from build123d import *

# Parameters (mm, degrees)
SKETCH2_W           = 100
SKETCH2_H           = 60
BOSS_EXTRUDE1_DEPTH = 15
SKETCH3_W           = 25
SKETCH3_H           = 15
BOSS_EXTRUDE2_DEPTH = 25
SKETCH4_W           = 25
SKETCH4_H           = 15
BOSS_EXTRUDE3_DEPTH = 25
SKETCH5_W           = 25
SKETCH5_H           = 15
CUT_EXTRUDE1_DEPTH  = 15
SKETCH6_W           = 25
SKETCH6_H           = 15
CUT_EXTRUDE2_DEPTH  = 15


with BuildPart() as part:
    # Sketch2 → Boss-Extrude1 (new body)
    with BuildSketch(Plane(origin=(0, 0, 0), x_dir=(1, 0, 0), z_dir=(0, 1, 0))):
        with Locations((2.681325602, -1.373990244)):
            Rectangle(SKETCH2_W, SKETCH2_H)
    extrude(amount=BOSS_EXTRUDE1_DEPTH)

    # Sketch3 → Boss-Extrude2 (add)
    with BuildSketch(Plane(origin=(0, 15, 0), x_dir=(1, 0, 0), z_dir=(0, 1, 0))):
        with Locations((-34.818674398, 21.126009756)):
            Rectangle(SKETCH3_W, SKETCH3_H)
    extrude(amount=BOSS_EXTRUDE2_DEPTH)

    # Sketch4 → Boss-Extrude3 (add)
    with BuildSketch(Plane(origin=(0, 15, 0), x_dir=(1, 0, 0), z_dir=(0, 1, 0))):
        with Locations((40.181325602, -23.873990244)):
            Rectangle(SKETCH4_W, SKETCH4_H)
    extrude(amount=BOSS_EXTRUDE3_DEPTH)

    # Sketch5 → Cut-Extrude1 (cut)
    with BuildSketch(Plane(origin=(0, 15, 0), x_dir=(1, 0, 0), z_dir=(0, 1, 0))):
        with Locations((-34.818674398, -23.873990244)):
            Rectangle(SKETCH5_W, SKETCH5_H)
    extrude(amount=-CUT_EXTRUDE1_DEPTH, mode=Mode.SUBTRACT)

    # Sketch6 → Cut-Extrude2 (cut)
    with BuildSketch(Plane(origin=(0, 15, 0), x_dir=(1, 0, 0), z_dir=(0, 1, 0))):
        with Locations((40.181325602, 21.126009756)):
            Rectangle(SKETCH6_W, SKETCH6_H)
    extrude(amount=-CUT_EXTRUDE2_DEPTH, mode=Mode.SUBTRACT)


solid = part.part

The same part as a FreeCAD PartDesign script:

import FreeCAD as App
import Part
import Sketcher

V = App.Vector

doc = App.newDocument("Part")
body = doc.addObject("PartDesign::Body", "Body")

# Sketch on XZ plane
sketch1 = doc.addObject("Sketcher::SketchObject", "Sketch")
body.addObject(sketch1)
sketch1.AttachmentSupport = (doc.XZ_Plane, [""])
sketch1.MapMode = "FlatFace"
sketch1.addGeometry(Part.LineSegment(V(-47, -29, 0), V(-47, 31, 0)), False)
sketch1.addGeometry(Part.LineSegment(V(-47, 31, 0), V(53, 31, 0)), False)
sketch1.addGeometry(Part.LineSegment(V(53, 31, 0), V(53, -29, 0)), False)
sketch1.addGeometry(Part.LineSegment(V(53, -29, 0), V(-47, -29, 0)), False)
sketch1.addConstraint(Sketcher.Constraint("Coincident", 0, 2, 1, 1))
sketch1.addConstraint(Sketcher.Constraint("Coincident", 1, 2, 2, 1))
sketch1.addConstraint(Sketcher.Constraint("Coincident", 2, 2, 3, 1))
sketch1.addConstraint(Sketcher.Constraint("Coincident", 3, 2, 0, 1))
sketch1.addConstraint(Sketcher.Constraint("Vertical", 0))
sketch1.addConstraint(Sketcher.Constraint("Horizontal", 1))
sketch1.addConstraint(Sketcher.Constraint("Vertical", 2))
sketch1.addConstraint(Sketcher.Constraint("Horizontal", 3))
sketch1.addConstraint(Sketcher.Constraint("DistanceX", 1, 1, 1, 2, 100.0))
sketch1.addConstraint(Sketcher.Constraint("DistanceY", 0, 1, 0, 2, 60.0))
sketch1.addConstraint(Sketcher.Constraint("DistanceY", -1, 1, 0, 2, 31.37399))
sketch1.addConstraint(Sketcher.Constraint("DistanceX", 0, 2, -1, 1, 47.318674))
pad1 = doc.addObject("PartDesign::Pad", "Pad")
body.addObject(pad1)
pad1.Profile = sketch1
pad1.Length = 15
pad1.Reversed = True

# Sketch on XZ plane
sketch2 = doc.addObject("Sketcher::SketchObject", "Sketch001")
body.addObject(sketch2)
sketch2.AttachmentSupport = (doc.XZ_Plane, [""])
sketch2.MapMode = "FlatFace"
sketch2.AttachmentOffset = App.Placement(V(0, 0, -15), App.Rotation())
sketch2.addGeometry(Part.LineSegment(V(-47, -29, 0), V(-47, -14, 0)), False)
sketch2.addGeometry(Part.LineSegment(V(-47, -14, 0), V(-22, -14, 0)), False)
sketch2.addGeometry(Part.LineSegment(V(-22, -14, 0), V(-22, -29, 0)), False)
sketch2.addGeometry(Part.LineSegment(V(-22, -29, 0), V(-47, -29, 0)), False)
sketch2.addConstraint(Sketcher.Constraint("Coincident", 0, 2, 1, 1))
sketch2.addConstraint(Sketcher.Constraint("Coincident", 1, 2, 2, 1))
sketch2.addConstraint(Sketcher.Constraint("Coincident", 2, 2, 3, 1))
sketch2.addConstraint(Sketcher.Constraint("Coincident", 3, 2, 0, 1))
sketch2.addConstraint(Sketcher.Constraint("Vertical", 0))
sketch2.addConstraint(Sketcher.Constraint("Horizontal", 1))
sketch2.addConstraint(Sketcher.Constraint("Vertical", 2))
sketch2.addConstraint(Sketcher.Constraint("Horizontal", 3))
sketch2.addConstraint(Sketcher.Constraint("DistanceX", 1, 1, 1, 2, 25.0))
sketch2.addConstraint(Sketcher.Constraint("DistanceY", 0, 1, 0, 2, 15.0))
sketch2.addConstraint(Sketcher.Constraint("DistanceY", 0, 2, -1, 1, 13.62601))
sketch2.addConstraint(Sketcher.Constraint("DistanceX", 0, 2, -1, 1, 47.318674))
pad2 = doc.addObject("PartDesign::Pad", "Pad001")
body.addObject(pad2)
pad2.Profile = sketch2
pad2.Length = 25
pad2.Reversed = True

# Sketch on XZ plane
sketch3 = doc.addObject("Sketcher::SketchObject", "Sketch002")
body.addObject(sketch3)
sketch3.AttachmentSupport = (doc.XZ_Plane, [""])
sketch3.MapMode = "FlatFace"
sketch3.AttachmentOffset = App.Placement(V(0, 0, -15), App.Rotation())
sketch3.addGeometry(Part.LineSegment(V(28, 16, 0), V(28, 31, 0)), False)
sketch3.addGeometry(Part.LineSegment(V(28, 31, 0), V(53, 31, 0)), False)
sketch3.addGeometry(Part.LineSegment(V(53, 31, 0), V(53, 16, 0)), False)
sketch3.addGeometry(Part.LineSegment(V(53, 16, 0), V(28, 16, 0)), False)
sketch3.addConstraint(Sketcher.Constraint("Coincident", 0, 2, 1, 1))
sketch3.addConstraint(Sketcher.Constraint("Coincident", 1, 2, 2, 1))
sketch3.addConstraint(Sketcher.Constraint("Coincident", 2, 2, 3, 1))
sketch3.addConstraint(Sketcher.Constraint("Coincident", 3, 2, 0, 1))
sketch3.addConstraint(Sketcher.Constraint("Vertical", 0))
sketch3.addConstraint(Sketcher.Constraint("Horizontal", 1))
sketch3.addConstraint(Sketcher.Constraint("Vertical", 2))
sketch3.addConstraint(Sketcher.Constraint("Horizontal", 3))
sketch3.addConstraint(Sketcher.Constraint("DistanceX", 1, 1, 1, 2, 25.0))
sketch3.addConstraint(Sketcher.Constraint("DistanceY", 0, 1, 0, 2, 15.0))
sketch3.addConstraint(Sketcher.Constraint("DistanceY", -1, 1, 0, 2, 31.37399))
sketch3.addConstraint(Sketcher.Constraint("DistanceX", -1, 1, 0, 2, 27.681326))
pad3 = doc.addObject("PartDesign::Pad", "Pad002")
body.addObject(pad3)
pad3.Profile = sketch3
pad3.Length = 25
pad3.Reversed = True

# Sketch on XZ plane
sketch4 = doc.addObject("Sketcher::SketchObject", "Sketch003")
body.addObject(sketch4)
sketch4.AttachmentSupport = (doc.XZ_Plane, [""])
sketch4.MapMode = "FlatFace"
sketch4.AttachmentOffset = App.Placement(V(0, 0, -15), App.Rotation())
sketch4.addGeometry(Part.LineSegment(V(-47, 16, 0), V(-47, 31, 0)), False)
sketch4.addGeometry(Part.LineSegment(V(-47, 31, 0), V(-22, 31, 0)), False)
sketch4.addGeometry(Part.LineSegment(V(-22, 31, 0), V(-22, 16, 0)), False)
sketch4.addGeometry(Part.LineSegment(V(-22, 16, 0), V(-47, 16, 0)), False)
sketch4.addConstraint(Sketcher.Constraint("Coincident", 0, 2, 1, 1))
sketch4.addConstraint(Sketcher.Constraint("Coincident", 1, 2, 2, 1))
sketch4.addConstraint(Sketcher.Constraint("Coincident", 2, 2, 3, 1))
sketch4.addConstraint(Sketcher.Constraint("Coincident", 3, 2, 0, 1))
sketch4.addConstraint(Sketcher.Constraint("Vertical", 0))
sketch4.addConstraint(Sketcher.Constraint("Horizontal", 1))
sketch4.addConstraint(Sketcher.Constraint("Vertical", 2))
sketch4.addConstraint(Sketcher.Constraint("Horizontal", 3))
sketch4.addConstraint(Sketcher.Constraint("DistanceX", 1, 1, 1, 2, 25.0))
sketch4.addConstraint(Sketcher.Constraint("DistanceY", 0, 1, 0, 2, 15.0))
sketch4.addConstraint(Sketcher.Constraint("DistanceY", -1, 1, 0, 2, 31.37399))
sketch4.addConstraint(Sketcher.Constraint("DistanceX", 0, 2, -1, 1, 47.318674))
pocket1 = doc.addObject("PartDesign::Pocket", "Pocket")
body.addObject(pocket1)
pocket1.Profile = sketch4
pocket1.Length = 15
pocket1.Reversed = True

# Sketch on XZ plane
sketch5 = doc.addObject("Sketcher::SketchObject", "Sketch004")
body.addObject(sketch5)
sketch5.AttachmentSupport = (doc.XZ_Plane, [""])
sketch5.MapMode = "FlatFace"
sketch5.AttachmentOffset = App.Placement(V(0, 0, -15), App.Rotation())
sketch5.addGeometry(Part.LineSegment(V(28, -29, 0), V(28, -14, 0)), False)
sketch5.addGeometry(Part.LineSegment(V(28, -14, 0), V(53, -14, 0)), False)
sketch5.addGeometry(Part.LineSegment(V(53, -14, 0), V(53, -29, 0)), False)
sketch5.addGeometry(Part.LineSegment(V(53, -29, 0), V(28, -29, 0)), False)
sketch5.addConstraint(Sketcher.Constraint("Coincident", 0, 2, 1, 1))
sketch5.addConstraint(Sketcher.Constraint("Coincident", 1, 2, 2, 1))
sketch5.addConstraint(Sketcher.Constraint("Coincident", 2, 2, 3, 1))
sketch5.addConstraint(Sketcher.Constraint("Coincident", 3, 2, 0, 1))
sketch5.addConstraint(Sketcher.Constraint("Vertical", 0))
sketch5.addConstraint(Sketcher.Constraint("Horizontal", 1))
sketch5.addConstraint(Sketcher.Constraint("Vertical", 2))
sketch5.addConstraint(Sketcher.Constraint("Horizontal", 3))
sketch5.addConstraint(Sketcher.Constraint("DistanceX", 1, 1, 1, 2, 25.0))
sketch5.addConstraint(Sketcher.Constraint("DistanceY", 0, 1, 0, 2, 15.0))
sketch5.addConstraint(Sketcher.Constraint("DistanceY", 0, 2, -1, 1, 13.62601))
sketch5.addConstraint(Sketcher.Constraint("DistanceX", -1, 1, 0, 2, 27.681326))
pocket2 = doc.addObject("PartDesign::Pocket", "Pocket001")
body.addObject(pocket2)
pocket2.Profile = sketch5
pocket2.Length = 15
pocket2.Reversed = True

doc.recompute()
